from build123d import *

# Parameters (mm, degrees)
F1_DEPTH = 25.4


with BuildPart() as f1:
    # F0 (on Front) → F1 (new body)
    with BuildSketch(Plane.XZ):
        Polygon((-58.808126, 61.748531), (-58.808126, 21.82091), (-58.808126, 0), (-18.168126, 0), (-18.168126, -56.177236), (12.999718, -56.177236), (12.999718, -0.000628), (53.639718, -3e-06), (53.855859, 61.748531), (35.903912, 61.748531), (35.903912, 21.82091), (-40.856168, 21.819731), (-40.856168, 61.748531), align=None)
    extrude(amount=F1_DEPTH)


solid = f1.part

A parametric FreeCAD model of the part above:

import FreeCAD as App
import Part
import Sketcher
Q = App.Units.Quantity

doc = App.newDocument("Part")
body = doc.addObject("PartDesign::Body", "Body")

# Sketch on XZ plane
sketch1 = doc.addObject("Sketcher::SketchObject", "Sketch")
body.addObject(sketch1)
sketch1.AttachmentSupport = (doc.XZ_Plane, [""])
sketch1.MapMode = "FlatFace"
sketch1.addGeometry([
    Part.LineSegment(App.Vector(-59, 62, 0), App.Vector(-59, 0, 0)),  # 0
    Part.LineSegment(App.Vector(-59, 0, 0), App.Vector(-18, 0, 0)),  # 1
    Part.LineSegment(App.Vector(-18, 0, 0), App.Vector(-18, -56, 0)),  # 2
    Part.LineSegment(App.Vector(-18, -56, 0), App.Vector(13, -56, 0)),  # 3
    Part.LineSegment(App.Vector(13, -56, 0), App.Vector(13, 0, 0)),  # 4
    Part.LineSegment(App.Vector(13, 0, 0), App.Vector(54, 0, 0)),  # 5
    Part.LineSegment(App.Vector(54, 0, 0), App.Vector(54, 62, 0)),  # 6
    Part.LineSegment(App.Vector(54, 62, 0), App.Vector(36, 62, 0)),  # 7
    Part.LineSegment(App.Vector(36, 62, 0), App.Vector(36, 22, 0)),  # 8
    Part.LineSegment(App.Vector(36, 22, 0), App.Vector(-41, 22, 0)),  # 9
    Part.LineSegment(App.Vector(-41, 22, 0), App.Vector(-41, 62, 0)),  # 10
    Part.LineSegment(App.Vector(-41, 62, 0), App.Vector(-59, 62, 0)),  # 11
], False)
sketch1.addConstraint([
    Sketcher.Constraint("Coincident", 0, 2, 1, 1),
    Sketcher.Constraint("Coincident", 1, 2, 2, 1),
    Sketcher.Constraint("Coincident", 2, 2, 3, 1),
    Sketcher.Constraint("Coincident", 3, 2, 4, 1),
    Sketcher.Constraint("Coincident", 4, 2, 5, 1),
    Sketcher.Constraint("Coincident", 5, 2, 6, 1),
    Sketcher.Constraint("Coincident", 6, 2, 7, 1),
    Sketcher.Constraint("Coincident", 7, 2, 8, 1),
    Sketcher.Constraint("Coincident", 8, 2, 9, 1),
    Sketcher.Constraint("Coincident", 9, 2, 10, 1),
    Sketcher.Constraint("Coincident", 10, 2, 11, 1),
    Sketcher.Constraint("Coincident", 11, 2, 0, 1),
    Sketcher.Constraint("Vertical", 0),
    Sketcher.Constraint("Horizontal", 1),
    Sketcher.Constraint("Vertical", 2),
    Sketcher.Constraint("Horizontal", 3),
    Sketcher.Constraint("Vertical", 4),
    Sketcher.Constraint("Horizontal", 7),
    Sketcher.Constraint("Vertical", 8),
    Sketcher.Constraint("Vertical", 10),
    Sketcher.Constraint("Horizontal", 11),
    Sketcher.Constraint("PointOnObject", 0, 2, -1),
    Sketcher.Constraint("Parallel", 5, 9),
    Sketcher.Constraint("Horizontal", 7, 2, 10, 2),
    Sketcher.Constraint("DistanceX", 1, 1, 1, 2, Q("1.6 in")),
    Sketcher.Constraint("Distance", 5, Q("1.6 in")),
    Sketcher.Constraint("DistanceY", 10, 1, 10, 2, Q("1.572 in")),
    Sketcher.Constraint("DistanceX", -1, 1, 3, 2, Q("0.5117999 in")),
    Sketcher.Constraint("DistanceX", 11, 2, 11, 1, Q("17.951958 mm")),
    Sketcher.Constraint("DistanceY", 0, 2, 0, 1, Q("61.748531 mm")),
    Sketcher.Constraint("DistanceY", 4, 1, 4, 2, Q("56.176608 mm")),
    Sketcher.Constraint("DistanceY", 8, 2, 8, 1, Q("39.927621 mm")),
    Sketcher.Constraint("Distance", 9, Q("76.76008 mm")),
    Sketcher.Constraint("DistanceX", 3, 1, 3, 2, Q("31.167844 mm")),
    Sketcher.Constraint("DistanceX", 7, 2, 7, 1, Q("17.951947 mm")),
    Sketcher.Constraint("DistanceY", 2, 2, 2, 1, Q("56.177236 mm")),
])
pad1 = doc.addObject("PartDesign::Pad", "Pad")
body.addObject(pad1)
pad1.Profile = sketch1
pad1.Length = Q("1 in")

doc.recompute()
